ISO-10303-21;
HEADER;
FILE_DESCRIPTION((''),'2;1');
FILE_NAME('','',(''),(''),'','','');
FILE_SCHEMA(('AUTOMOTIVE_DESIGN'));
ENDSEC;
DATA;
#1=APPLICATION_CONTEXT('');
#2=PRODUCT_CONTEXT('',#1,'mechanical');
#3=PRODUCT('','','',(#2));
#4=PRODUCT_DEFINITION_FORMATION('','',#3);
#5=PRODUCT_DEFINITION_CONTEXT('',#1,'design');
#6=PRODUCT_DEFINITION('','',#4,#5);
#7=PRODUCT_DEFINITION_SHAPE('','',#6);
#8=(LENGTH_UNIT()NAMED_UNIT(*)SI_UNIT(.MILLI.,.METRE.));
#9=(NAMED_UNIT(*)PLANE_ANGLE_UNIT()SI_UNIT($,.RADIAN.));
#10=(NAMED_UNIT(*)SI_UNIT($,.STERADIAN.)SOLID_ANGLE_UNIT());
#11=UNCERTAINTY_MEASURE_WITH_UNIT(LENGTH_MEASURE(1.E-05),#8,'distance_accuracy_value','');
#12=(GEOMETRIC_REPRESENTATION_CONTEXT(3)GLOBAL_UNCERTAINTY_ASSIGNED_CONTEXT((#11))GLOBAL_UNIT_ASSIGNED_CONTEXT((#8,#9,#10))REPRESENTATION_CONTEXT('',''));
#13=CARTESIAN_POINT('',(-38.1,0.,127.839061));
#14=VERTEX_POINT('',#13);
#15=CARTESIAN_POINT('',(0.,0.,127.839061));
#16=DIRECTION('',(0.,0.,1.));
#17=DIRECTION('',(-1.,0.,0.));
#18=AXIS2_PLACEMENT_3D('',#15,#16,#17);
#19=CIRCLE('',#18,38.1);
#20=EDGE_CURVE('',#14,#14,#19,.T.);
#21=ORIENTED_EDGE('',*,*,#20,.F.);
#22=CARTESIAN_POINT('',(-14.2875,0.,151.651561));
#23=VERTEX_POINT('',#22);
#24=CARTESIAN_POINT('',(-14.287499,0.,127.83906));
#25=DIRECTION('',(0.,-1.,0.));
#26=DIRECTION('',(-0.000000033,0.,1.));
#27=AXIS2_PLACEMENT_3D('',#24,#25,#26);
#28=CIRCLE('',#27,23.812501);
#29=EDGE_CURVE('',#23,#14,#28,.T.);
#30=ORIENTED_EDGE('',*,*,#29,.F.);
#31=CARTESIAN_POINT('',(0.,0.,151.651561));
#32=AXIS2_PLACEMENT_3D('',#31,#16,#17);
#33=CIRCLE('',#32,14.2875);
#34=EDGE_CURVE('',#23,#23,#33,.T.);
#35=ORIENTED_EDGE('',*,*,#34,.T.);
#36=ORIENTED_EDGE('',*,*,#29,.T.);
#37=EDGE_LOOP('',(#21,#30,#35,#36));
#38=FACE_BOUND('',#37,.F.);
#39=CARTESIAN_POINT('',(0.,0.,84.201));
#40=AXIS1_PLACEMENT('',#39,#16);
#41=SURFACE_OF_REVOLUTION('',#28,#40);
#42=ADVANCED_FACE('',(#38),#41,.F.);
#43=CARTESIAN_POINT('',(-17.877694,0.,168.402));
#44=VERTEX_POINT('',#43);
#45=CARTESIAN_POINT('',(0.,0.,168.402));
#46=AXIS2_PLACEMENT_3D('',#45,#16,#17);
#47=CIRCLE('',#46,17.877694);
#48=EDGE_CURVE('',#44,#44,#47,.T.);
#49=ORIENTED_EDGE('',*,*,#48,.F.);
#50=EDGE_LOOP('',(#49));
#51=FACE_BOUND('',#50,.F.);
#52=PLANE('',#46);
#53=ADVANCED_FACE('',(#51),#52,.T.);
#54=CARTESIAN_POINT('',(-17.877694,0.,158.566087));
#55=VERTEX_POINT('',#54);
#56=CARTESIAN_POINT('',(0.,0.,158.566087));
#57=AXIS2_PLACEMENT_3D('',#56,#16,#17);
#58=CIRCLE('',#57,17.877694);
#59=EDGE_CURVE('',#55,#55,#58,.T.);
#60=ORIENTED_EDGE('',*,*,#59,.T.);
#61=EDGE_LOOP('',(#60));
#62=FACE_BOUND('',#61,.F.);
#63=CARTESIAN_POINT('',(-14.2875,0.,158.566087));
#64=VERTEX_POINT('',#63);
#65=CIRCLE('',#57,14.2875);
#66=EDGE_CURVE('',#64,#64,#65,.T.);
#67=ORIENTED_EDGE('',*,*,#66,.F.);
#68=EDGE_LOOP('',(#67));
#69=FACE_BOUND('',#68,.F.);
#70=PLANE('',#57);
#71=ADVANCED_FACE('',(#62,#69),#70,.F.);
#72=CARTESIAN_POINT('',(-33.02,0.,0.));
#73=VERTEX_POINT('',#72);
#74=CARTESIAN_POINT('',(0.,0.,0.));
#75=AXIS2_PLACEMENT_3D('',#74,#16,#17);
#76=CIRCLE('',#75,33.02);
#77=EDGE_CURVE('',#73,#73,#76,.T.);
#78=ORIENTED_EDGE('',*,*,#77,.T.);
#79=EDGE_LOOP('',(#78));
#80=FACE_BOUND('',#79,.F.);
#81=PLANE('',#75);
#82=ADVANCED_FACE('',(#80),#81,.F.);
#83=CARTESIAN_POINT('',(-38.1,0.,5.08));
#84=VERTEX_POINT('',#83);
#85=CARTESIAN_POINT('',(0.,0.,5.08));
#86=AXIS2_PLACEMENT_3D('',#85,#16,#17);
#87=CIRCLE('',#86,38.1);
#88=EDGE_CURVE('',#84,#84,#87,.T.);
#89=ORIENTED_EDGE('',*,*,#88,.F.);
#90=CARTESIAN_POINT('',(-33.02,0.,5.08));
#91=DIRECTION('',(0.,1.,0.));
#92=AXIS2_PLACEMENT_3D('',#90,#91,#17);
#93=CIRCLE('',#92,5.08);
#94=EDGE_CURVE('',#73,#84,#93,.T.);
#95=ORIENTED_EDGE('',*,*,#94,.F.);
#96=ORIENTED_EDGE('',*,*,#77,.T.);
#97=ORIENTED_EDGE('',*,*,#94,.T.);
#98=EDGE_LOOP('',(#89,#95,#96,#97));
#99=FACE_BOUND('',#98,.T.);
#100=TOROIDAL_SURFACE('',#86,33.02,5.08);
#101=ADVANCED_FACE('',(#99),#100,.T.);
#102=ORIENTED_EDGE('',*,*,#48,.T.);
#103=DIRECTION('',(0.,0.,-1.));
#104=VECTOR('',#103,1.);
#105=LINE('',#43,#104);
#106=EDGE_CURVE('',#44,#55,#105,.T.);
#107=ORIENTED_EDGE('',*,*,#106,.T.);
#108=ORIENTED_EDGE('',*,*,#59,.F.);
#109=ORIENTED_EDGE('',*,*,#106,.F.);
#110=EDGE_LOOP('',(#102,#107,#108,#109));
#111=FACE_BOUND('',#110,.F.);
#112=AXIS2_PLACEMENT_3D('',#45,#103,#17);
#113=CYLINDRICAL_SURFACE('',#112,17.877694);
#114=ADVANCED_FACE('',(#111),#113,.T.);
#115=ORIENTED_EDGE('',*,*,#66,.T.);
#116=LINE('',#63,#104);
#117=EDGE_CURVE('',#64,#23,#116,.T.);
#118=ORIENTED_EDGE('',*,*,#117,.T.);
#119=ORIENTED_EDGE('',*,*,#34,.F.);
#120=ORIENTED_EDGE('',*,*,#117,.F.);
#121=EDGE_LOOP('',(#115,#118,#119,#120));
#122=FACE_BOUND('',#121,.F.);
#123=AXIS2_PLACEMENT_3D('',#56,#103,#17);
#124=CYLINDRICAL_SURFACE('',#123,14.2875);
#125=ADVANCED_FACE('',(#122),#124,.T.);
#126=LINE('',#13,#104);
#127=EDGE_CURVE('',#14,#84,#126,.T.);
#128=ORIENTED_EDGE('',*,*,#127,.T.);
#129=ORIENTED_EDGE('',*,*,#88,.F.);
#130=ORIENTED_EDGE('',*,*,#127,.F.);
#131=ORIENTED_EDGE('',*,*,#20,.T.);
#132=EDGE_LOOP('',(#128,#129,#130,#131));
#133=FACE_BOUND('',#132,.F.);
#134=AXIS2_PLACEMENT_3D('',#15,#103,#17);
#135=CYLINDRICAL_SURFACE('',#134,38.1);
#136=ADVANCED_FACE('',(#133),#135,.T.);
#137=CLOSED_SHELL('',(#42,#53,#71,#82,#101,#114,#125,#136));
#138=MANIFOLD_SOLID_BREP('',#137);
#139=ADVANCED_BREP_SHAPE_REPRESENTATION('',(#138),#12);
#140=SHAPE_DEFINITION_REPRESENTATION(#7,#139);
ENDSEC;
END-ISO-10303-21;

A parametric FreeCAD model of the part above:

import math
import FreeCAD as App
import Part
import Sketcher
from FreeCAD import Vector
Q = App.Units.Quantity


def edges_at(feature, points):
    """Names of the edges that pass closest to the given points."""
    edges = feature.Shape.Edges
    near = lambda p: min(range(len(edges)), key=lambda i: edges[i].distToShape(Part.Vertex(*p))[0])
    return sorted({f"Edge{near(p) + 1}" for p in points})

doc = App.newDocument("Part")
body = doc.addObject("PartDesign::Body", "Body")

sketch1 = body.newObject("Sketcher::SketchObject", "Sketch")
sketch1.AttachmentSupport = (doc.getObject("XZ_Plane"), [""])
sketch1.MapMode = "FlatFace"
sketch1.addGeometry(Part.LineSegment(Vector(-38.1, 0, 0), Vector(0, 0, 0)), False)
sketch1.addGeometry(Part.LineSegment(Vector(0, 0, 0), Vector(0, 168.4, 0)), False)
sketch1.addGeometry(Part.LineSegment(Vector(0, 168.4, 0), Vector(-17.9, 168.4, 0)), False)
sketch1.addGeometry(Part.LineSegment(Vector(-17.9, 168.4, 0), Vector(-17.9, 158.6, 0)), False)
sketch1.addGeometry(Part.LineSegment(Vector(-17.9, 158.6, 0), Vector(-14.3, 158.6, 0)), False)
sketch1.addGeometry(Part.LineSegment(Vector(-14.3, 158.6, 0), Vector(-14.3, 151.7, 0)), False)
sketch1.addGeometry(Part.ArcOfCircle(Part.Circle(Vector(-14.3, 127.8, 0), Vector(0, 0, 1), 23.8), math.radians(90), math.radians(180)), False)
sketch1.addGeometry(Part.LineSegment(Vector(-38.1, 127.8, 0), Vector(-38.1, 0, 0)), False)
sketch1.addConstraint(Sketcher.Constraint("Coincident", 0, 2, 1, 1))
sketch1.addConstraint(Sketcher.Constraint("Coincident", 1, 2, 2, 1))
sketch1.addConstraint(Sketcher.Constraint("Coincident", 2, 2, 3, 1))
sketch1.addConstraint(Sketcher.Constraint("Coincident", 3, 2, 4, 1))
sketch1.addConstraint(Sketcher.Constraint("Coincident", 4, 2, 5, 1))
sketch1.addConstraint(Sketcher.Constraint("Coincident", 5, 2, 6, 1))
sketch1.addConstraint(Sketcher.Constraint("Tangent", 6, 2, 7, 1))
sketch1.addConstraint(Sketcher.Constraint("Coincident", 7, 2, 0, 1))
sketch1.addConstraint(Sketcher.Constraint("Horizontal", 0))
sketch1.addConstraint(Sketcher.Constraint("Vertical", 1))
sketch1.addConstraint(Sketcher.Constraint("Horizontal", 2))
sketch1.addConstraint(Sketcher.Constraint("Vertical", 3))
sketch1.addConstraint(Sketcher.Constraint("Horizontal", 4))
sketch1.addConstraint(Sketcher.Constraint("Vertical", 5))
sketch1.addConstraint(Sketcher.Constraint("Vertical", 7))
sketch1.addConstraint(Sketcher.Constraint("Coincident", 0, 2, -1, 1))
sketch1.addConstraint(Sketcher.Constraint("Vertical", 6, 3, 4, 2))
sketch1.addConstraint(Sketcher.Constraint("DistanceX", 0, 1, 0, 2, Q("1.5 in")))
sketch1.addConstraint(Sketcher.Constraint("Radius", 6, Q("0.9375 in")))
sketch1.addConstraint(Sketcher.Constraint("DistanceY", 1, 1, 1, 2, Q("6.63 in")))
sketch1.addConstraint(Sketcher.Constraint("DistanceY", 7, 2, 7, 1, Q("127.839061 mm")))
sketch1.addConstraint(Sketcher.Constraint("DistanceX", 2, 2, 2, 1, Q("17.877694 mm")))
sketch1.addConstraint(Sketcher.Constraint("DistanceY", 3, 2, 3, 1, Q("9.835913 mm")))
revolution = body.newObject("PartDesign::Revolution", "Revolution")
revolution.Profile = sketch1
revolution.ReferenceAxis = (sketch1, ["V_Axis"])
revolution.Angle = 360
doc.recompute()

fillet = body.newObject("PartDesign::Fillet", "Fillet")
fillet.Base = (revolution, edges_at(revolution, [(38.1, 0, 0)]))
fillet.Radius = Q("0.2 in")

doc.recompute()
